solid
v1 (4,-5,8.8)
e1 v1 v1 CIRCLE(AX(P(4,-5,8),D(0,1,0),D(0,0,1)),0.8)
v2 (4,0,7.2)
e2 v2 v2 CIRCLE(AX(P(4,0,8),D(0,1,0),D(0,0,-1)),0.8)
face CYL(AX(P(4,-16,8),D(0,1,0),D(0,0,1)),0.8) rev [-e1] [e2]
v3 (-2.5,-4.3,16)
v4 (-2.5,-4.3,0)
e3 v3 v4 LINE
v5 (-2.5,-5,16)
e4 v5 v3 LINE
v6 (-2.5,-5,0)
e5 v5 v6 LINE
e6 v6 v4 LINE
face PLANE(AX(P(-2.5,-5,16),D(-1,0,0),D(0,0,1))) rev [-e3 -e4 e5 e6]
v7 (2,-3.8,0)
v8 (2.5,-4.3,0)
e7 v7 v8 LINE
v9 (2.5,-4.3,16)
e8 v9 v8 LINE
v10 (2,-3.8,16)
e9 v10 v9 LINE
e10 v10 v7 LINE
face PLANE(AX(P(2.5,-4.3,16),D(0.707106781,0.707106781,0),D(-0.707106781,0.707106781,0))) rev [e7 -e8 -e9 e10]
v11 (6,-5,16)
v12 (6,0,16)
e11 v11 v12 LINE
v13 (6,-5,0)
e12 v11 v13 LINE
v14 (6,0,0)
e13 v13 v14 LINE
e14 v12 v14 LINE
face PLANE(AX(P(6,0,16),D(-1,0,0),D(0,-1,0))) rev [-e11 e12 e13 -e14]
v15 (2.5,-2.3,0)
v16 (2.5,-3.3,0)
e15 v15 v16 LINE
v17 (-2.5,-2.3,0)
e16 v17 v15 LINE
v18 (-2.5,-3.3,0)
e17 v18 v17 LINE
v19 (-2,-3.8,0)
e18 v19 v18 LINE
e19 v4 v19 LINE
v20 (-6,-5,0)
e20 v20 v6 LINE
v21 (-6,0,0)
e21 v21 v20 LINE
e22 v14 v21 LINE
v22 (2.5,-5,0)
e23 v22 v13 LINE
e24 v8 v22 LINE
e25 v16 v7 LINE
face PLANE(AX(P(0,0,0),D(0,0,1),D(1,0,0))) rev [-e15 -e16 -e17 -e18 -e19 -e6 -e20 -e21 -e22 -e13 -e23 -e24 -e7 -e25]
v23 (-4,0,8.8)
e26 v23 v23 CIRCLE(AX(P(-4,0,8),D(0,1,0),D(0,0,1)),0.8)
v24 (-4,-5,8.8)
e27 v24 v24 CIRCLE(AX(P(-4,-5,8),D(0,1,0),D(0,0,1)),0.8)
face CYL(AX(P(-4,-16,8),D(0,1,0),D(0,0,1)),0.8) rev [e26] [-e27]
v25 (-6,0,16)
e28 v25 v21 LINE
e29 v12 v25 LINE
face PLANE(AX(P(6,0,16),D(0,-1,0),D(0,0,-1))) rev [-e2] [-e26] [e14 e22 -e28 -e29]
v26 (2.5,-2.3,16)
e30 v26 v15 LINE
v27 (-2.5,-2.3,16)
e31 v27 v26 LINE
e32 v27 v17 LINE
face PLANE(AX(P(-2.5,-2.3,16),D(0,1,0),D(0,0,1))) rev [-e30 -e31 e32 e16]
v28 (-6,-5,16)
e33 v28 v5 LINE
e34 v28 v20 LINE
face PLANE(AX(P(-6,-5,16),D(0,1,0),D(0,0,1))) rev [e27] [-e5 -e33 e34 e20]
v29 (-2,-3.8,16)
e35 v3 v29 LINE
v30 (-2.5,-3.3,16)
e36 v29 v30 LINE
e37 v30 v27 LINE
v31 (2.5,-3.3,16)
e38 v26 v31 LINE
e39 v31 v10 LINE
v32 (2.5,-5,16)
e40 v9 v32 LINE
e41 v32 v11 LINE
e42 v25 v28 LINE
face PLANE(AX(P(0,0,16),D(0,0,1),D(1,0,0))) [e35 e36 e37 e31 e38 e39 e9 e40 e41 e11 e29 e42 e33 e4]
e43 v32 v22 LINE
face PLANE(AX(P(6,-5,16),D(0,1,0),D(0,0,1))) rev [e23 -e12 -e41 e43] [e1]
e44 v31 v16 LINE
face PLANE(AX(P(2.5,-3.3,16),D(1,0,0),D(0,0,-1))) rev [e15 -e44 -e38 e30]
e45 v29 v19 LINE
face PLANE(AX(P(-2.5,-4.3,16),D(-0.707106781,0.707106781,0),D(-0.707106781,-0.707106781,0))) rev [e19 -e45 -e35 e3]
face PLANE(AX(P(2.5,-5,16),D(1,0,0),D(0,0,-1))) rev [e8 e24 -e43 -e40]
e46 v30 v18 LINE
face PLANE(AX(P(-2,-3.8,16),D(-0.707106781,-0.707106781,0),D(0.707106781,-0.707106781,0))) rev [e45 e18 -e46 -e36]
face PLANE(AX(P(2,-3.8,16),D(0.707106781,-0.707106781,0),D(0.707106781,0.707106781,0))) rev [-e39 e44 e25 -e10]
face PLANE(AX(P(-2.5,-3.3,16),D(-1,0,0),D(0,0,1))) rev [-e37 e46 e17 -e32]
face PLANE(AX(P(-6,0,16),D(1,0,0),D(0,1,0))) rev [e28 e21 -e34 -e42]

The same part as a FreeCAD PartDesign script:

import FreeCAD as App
import Part
import Sketcher
from FreeCAD import Vector
Q = App.Units.Quantity


def add_polygon(sketch, points):
    """Adds a closed chain of lines whose ends are joined by coincident constraints."""
    first, n = sketch.GeometryCount, len(points)
    for a, b in zip(points, points[1:] + points[:1]):
        sketch.addGeometry(Part.LineSegment(App.Vector(*a, 0), App.Vector(*b, 0)), False)
    for i in range(n):
        sketch.addConstraint(Sketcher.Constraint("Coincident", first + i, 2, first + (i + 1) % n, 1))

doc = App.newDocument("Part")
body = doc.addObject("PartDesign::Body", "Body")

sketch1 = body.newObject("Sketcher::SketchObject", "Sketch")
sketch1.AttachmentSupport = (doc.getObject("XY_Plane"), [""])
sketch1.MapMode = "FlatFace"
add_polygon(sketch1, [(6, 0), (-6, 0), (-6, -5), (-2.5, -5), (-2.5, -4.3), (-2, -3.8), (-2.5, -3.3), (-2.5, -2.3), (2.5, -2.3), (2.5, -3.3), (2, -3.8), (2.5, -4.3), (2.5, -5), (6, -5)])
sketch1.addConstraint([
    Sketcher.Constraint("Horizontal", 0),
    Sketcher.Constraint("Vertical", 1),
    Sketcher.Constraint("Horizontal", 2),
    Sketcher.Constraint("Vertical", 3),
    Sketcher.Constraint("Vertical", 6),
    Sketcher.Constraint("Horizontal", 7),
    Sketcher.Constraint("Vertical", 8),
    Sketcher.Constraint("Vertical", 11),
    Sketcher.Constraint("Horizontal", 12),
    Sketcher.Constraint("Vertical", 13),
    Sketcher.Constraint("Symmetric", 0, 2, 13, 2, -1, 1),
    Sketcher.Constraint("Symmetric", 5, 2, 8, 2, -2),
    Sketcher.Constraint("Symmetric", 4, 2, 9, 2, -2),
    Sketcher.Constraint("Symmetric", 3, 2, 10, 2, -2),
    Sketcher.Constraint("Perpendicular", 4, 5),
    Sketcher.Constraint("Perpendicular", 5, 9),
    Sketcher.Constraint("Horizontal", 2, 2, 11, 2),
    Sketcher.Constraint("Vertical", 3, 2, 5, 2),
    Sketcher.Constraint("Equal", 7, 1),
    Sketcher.Constraint("DistanceX", 0, 2, 0, 1, Q("12 mm")),
    Sketcher.Constraint("DistanceX", 7, 1, 7, 2, Q("5 mm")),
    Sketcher.Constraint("DistanceY", 6, 1, 6, 2, Q("1 mm")),
    Sketcher.Constraint("DistanceY", 3, 1, 3, 2, Q("0.7 mm")),
    Sketcher.Constraint("DistanceX", 4, 2, -1, 1, Q("2 mm")),
])
pad1 = body.newObject("PartDesign::Pad", "Pad")
pad1.Profile = sketch1
pad1.Length = 16

sketch2 = body.newObject("Sketcher::SketchObject", "Sketch001")
sketch2.AttachmentSupport = (doc.getObject("XZ_Plane"), [""])
sketch2.MapMode = "FlatFace"
sketch2.addGeometry([
    Part.Circle(Vector(-4, 8, 0), Vector(0, 0, 1), 0.8),
    Part.Circle(Vector(4, 8, 0), Vector(0, 0, 1), 0.8),
], False)
sketch2.addConstraint([
    Sketcher.Constraint("Equal", 0, 1),
    Sketcher.Constraint("Symmetric", 0, 3, 1, 3, -2),
    Sketcher.Constraint("Diameter", 0, Q("1.6 mm")),
    Sketcher.Constraint("DistanceX", 0, 3, -1, 1, Q("4 mm")),
    Sketcher.Constraint("DistanceY", -1, 1, 0, 3, Q("8 mm")),
])
pocket1 = body.newObject("PartDesign::Pocket", "Pocket")
pocket1.Profile = sketch2
pocket1.Length = 16
pocket1.Reversed = True

doc.recompute()
